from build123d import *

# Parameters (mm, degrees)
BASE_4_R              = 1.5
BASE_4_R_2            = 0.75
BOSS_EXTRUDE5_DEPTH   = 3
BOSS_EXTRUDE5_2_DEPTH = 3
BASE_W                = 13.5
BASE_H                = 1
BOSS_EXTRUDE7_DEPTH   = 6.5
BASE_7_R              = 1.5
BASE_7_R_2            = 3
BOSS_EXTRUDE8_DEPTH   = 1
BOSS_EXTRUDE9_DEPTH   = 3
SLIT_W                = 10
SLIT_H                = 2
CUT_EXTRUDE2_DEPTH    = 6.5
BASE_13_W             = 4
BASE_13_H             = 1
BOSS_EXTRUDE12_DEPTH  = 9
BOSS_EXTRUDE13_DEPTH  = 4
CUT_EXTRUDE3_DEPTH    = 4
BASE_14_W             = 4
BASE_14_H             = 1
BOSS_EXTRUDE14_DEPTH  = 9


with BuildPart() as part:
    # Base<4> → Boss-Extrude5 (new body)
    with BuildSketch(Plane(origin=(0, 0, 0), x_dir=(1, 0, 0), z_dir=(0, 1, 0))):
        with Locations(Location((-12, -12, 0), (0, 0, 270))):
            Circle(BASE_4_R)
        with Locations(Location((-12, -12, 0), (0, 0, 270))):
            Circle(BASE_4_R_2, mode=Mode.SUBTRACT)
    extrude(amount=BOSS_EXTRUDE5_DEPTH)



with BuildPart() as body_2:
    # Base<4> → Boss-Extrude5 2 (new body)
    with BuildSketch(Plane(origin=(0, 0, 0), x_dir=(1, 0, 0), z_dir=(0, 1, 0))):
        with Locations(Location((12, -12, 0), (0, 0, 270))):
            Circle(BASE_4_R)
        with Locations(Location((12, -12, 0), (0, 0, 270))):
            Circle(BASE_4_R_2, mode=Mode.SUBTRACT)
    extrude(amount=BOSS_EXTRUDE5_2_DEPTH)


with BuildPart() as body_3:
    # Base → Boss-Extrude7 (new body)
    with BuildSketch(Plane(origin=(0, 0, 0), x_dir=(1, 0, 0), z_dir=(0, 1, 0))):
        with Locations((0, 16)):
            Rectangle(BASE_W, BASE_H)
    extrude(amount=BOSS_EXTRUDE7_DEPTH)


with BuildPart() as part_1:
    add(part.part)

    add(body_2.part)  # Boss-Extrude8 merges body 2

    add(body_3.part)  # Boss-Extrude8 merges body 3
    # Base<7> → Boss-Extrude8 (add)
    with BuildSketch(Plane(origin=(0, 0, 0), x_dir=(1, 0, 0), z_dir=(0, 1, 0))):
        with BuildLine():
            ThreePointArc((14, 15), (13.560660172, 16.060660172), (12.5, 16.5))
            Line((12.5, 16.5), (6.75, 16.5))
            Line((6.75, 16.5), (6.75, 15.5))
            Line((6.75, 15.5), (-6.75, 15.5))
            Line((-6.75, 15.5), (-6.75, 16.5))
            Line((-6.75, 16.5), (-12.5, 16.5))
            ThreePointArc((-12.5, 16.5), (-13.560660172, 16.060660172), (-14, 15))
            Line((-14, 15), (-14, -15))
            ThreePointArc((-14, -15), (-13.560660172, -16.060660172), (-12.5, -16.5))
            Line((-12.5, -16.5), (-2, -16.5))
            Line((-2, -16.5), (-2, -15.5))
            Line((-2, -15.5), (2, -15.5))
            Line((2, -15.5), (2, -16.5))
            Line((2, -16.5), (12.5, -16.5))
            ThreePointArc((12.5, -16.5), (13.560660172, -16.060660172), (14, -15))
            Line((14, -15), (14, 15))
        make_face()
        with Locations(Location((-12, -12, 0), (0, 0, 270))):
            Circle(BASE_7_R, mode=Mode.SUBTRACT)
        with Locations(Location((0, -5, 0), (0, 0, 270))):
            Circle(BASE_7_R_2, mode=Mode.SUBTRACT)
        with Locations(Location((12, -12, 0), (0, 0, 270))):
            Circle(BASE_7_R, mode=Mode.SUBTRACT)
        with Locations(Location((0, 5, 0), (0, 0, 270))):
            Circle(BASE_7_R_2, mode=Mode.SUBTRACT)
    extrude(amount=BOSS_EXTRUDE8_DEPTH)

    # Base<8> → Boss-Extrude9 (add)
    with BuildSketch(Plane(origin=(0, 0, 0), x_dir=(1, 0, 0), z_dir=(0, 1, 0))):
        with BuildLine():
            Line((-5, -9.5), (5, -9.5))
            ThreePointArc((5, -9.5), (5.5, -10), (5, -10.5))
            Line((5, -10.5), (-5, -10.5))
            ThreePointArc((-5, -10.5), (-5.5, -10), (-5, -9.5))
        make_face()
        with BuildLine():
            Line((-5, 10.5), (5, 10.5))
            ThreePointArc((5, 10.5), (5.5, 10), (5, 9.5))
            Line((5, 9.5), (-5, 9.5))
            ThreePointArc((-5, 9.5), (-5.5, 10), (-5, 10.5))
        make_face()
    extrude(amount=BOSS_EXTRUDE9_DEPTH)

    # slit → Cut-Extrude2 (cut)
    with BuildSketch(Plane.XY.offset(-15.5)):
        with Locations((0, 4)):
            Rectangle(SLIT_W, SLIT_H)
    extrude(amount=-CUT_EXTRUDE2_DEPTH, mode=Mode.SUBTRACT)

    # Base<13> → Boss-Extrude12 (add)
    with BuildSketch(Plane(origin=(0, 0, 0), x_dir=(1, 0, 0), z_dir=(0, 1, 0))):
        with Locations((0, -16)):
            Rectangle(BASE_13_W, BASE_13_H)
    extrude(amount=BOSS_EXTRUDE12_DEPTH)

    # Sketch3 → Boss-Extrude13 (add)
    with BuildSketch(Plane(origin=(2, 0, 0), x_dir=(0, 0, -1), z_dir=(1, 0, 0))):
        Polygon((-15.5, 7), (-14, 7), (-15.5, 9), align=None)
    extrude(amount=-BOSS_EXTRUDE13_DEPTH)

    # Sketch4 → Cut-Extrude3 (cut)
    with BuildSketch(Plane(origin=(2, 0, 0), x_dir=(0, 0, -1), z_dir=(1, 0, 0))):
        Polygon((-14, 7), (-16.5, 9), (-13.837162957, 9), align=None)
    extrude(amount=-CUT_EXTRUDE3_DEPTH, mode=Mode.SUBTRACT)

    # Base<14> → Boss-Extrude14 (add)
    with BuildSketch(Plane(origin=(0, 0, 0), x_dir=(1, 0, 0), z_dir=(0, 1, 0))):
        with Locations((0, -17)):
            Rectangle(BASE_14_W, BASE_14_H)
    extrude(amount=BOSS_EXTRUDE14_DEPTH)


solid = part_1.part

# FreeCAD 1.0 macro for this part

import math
import FreeCAD as App
import Part
import Sketcher
from FreeCAD import Vector


def add_polygon(sketch, points):
    """Adds a closed chain of lines whose ends are joined by coincident constraints."""
    first, n = sketch.GeometryCount, len(points)
    for a, b in zip(points, points[1:] + points[:1]):
        sketch.addGeometry(Part.LineSegment(App.Vector(*a, 0), App.Vector(*b, 0)), False)
    for i in range(n):
        sketch.addConstraint(Sketcher.Constraint("Coincident", first + i, 2, first + (i + 1) % n, 1))

doc = App.newDocument("Part")
params = doc.addObject("Spreadsheet::Sheet", "Params")
for row, (alias, value) in enumerate([
    ("sketch1_diameter", "3 mm"),
    ("sketch1_diameter2", "1.5 mm"),
    ("pad1_length", "3 mm"),
    ("sketch2_diameter", "3 mm"),
    ("sketch2_diameter2", "1.5 mm"),
    ("pad2_length", "3 mm"),
    ("sketch3_height", "1 mm"),
    ("sketch3_width", "13.5 mm"),
    ("pad3_length", "6.5 mm"),
    ("sketch4_diameter", "3 mm"),
    ("sketch4_diameter2", "6 mm"),
    ("sketch4_width", "4 mm"),
    ("sketch4_height", "1 mm"),
    ("sketch4_height2", "30 mm"),
    ("pad4_length", "1 mm"),
    ("sketch5_radius", "0.5 mm"),
    ("sketch5_width", "10 mm"),
    ("pad5_length", "3 mm"),
    ("sketch6_width", "10 mm"),
    ("sketch6_height", "2 mm"),
    ("pocket1_length", "6.5 mm"),
    ("sketch7_width", "4 mm"),
    ("sketch7_height", "1 mm"),
    ("pad6_length", "9 mm"),
    ("sketch8_width", "2 mm"),
    ("sketch8_height", "1.5 mm"),
    ("pad7_length", "4 mm"),
    ("pocket2_length", "4 mm"),
    ("sketch10_width", "4 mm"),
    ("sketch10_height", "1 mm"),
    ("pad8_length", "9 mm"),
], start=1):
    params.set(f"A{row}", alias)
    params.set(f"B{row}", "=" + value)
    params.setAlias(f"B{row}", alias)

body = doc.addObject("PartDesign::Body", "Body")

# Sketch on XZ plane
sketch1 = doc.addObject("Sketcher::SketchObject", "Sketch")
body.addObject(sketch1)
sketch1.AttachmentSupport = (doc.XZ_Plane, [""])
sketch1.MapMode = "FlatFace"
sketch1.addGeometry(Part.Circle(Vector(-12, 12, 0), Vector(0, 0, 1), 1.5), False)
sketch1.addGeometry(Part.Circle(Vector(-12, 12, 0), Vector(0, 0, 1), 0.8), False)
sketch1.addConstraint(Sketcher.Constraint("Coincident", 1, 3, 0, 3))
sketch1.addConstraint(Sketcher.Constraint("Diameter", 0, 3.0))
sketch1.addConstraint(Sketcher.Constraint("Diameter", 1, 1.5))
sketch1.addConstraint(Sketcher.Constraint("DistanceX", 0, 3, -1, 1, 12.0))
sketch1.addConstraint(Sketcher.Constraint("DistanceY", -1, 1, 0, 3, 12.0))
sketch1.setExpression("Constraints[1]", "Params.sketch1_diameter")
sketch1.setExpression("Constraints[2]", "Params.sketch1_diameter2")
pad1 = doc.addObject("PartDesign::Pad", "Pad")
body.addObject(pad1)
pad1.Profile = sketch1
pad1.setExpression("Length", "Params.pad1_length")
pad1.Reversed = True
body2 = doc.addObject("PartDesign::Body", "Body001")

# Sketch on XZ plane
sketch2 = doc.addObject("Sketcher::SketchObject", "Sketch001")
body2.addObject(sketch2)
sketch2.AttachmentSupport = (doc.getObject("XZ_Plane001"), [""])
sketch2.MapMode = "FlatFace"
sketch2.addGeometry(Part.Circle(Vector(12, 12, 0), Vector(0, 0, 1), 1.5), False)
sketch2.addGeometry(Part.Circle(Vector(12, 12, 0), Vector(0, 0, 1), 0.8), False)
sketch2.addConstraint(Sketcher.Constraint("Coincident", 1, 3, 0, 3))
sketch2.addConstraint(Sketcher.Constraint("Diameter", 0, 3.0))
sketch2.addConstraint(Sketcher.Constraint("Diameter", 1, 1.5))
sketch2.addConstraint(Sketcher.Constraint("DistanceX", -1, 1, 0, 3, 12.0))
sketch2.addConstraint(Sketcher.Constraint("DistanceY", -1, 1, 0, 3, 12.0))
sketch2.setExpression("Constraints[1]", "Params.sketch2_diameter")
sketch2.setExpression("Constraints[2]", "Params.sketch2_diameter2")
pad2 = doc.addObject("PartDesign::Pad", "Pad001")
body2.addObject(pad2)
pad2.Profile = sketch2
pad2.setExpression("Length", "Params.pad2_length")
pad2.Reversed = True
body3 = doc.addObject("PartDesign::Body", "Body002")

# Sketch on XZ plane
sketch3 = doc.addObject("Sketcher::SketchObject", "Sketch002")
body3.addObject(sketch3)
sketch3.AttachmentSupport = (doc.getObject("XZ_Plane002"), [""])
sketch3.MapMode = "FlatFace"
add_polygon(sketch3, [(-6.8, -16.5), (-6.8, -15.5), (6.8, -15.5), (6.8, -16.5)])  # lines 0-3
sketch3.addConstraint(Sketcher.Constraint("Vertical", 0))
sketch3.addConstraint(Sketcher.Constraint("Horizontal", 1))
sketch3.addConstraint(Sketcher.Constraint("Vertical", 2))
sketch3.addConstraint(Sketcher.Constraint("Horizontal", 3))
sketch3.addConstraint(Sketcher.Constraint("DistanceY", 0, 1, 0, 2, 1.0))
sketch3.addConstraint(Sketcher.Constraint("DistanceX", 1, 1, 1, 2, 13.5))
sketch3.addConstraint(Sketcher.Constraint("DistanceY", 0, 2, -1, 1, 15.5))
sketch3.addConstraint(Sketcher.Constraint("DistanceX", 0, 2, -1, 1, 6.75))
sketch3.setExpression("Constraints[8]", "Params.sketch3_height")
sketch3.setExpression("Constraints[9]", "Params.sketch3_width")
pad3 = doc.addObject("PartDesign::Pad", "Pad002")
body3.addObject(pad3)
pad3.Profile = sketch3
pad3.setExpression("Length", "Params.pad3_length")
pad3.Reversed = True
body.AllowCompound = True
doc.recompute()

boolean = doc.addObject("PartDesign::Boolean", "Boolean")
body.addObject(boolean)
boolean.Type = "Fuse"
boolean.addObjects([body2])
doc.recompute()

boolean2 = doc.addObject("PartDesign::Boolean", "Boolean001")
body.addObject(boolean2)
boolean2.Type = "Fuse"
boolean2.addObjects([body3])

# Sketch on XZ plane
sketch4 = doc.addObject("Sketcher::SketchObject", "Sketch003")
body.addObject(sketch4)
sketch4.AttachmentSupport = (doc.XZ_Plane, [""])
sketch4.MapMode = "FlatFace"
sketch4.addGeometry(Part.ArcOfCircle(Part.Circle(Vector(12.5, -15, 0), Vector(0, 0, 1), 1.5), math.radians(-90), math.radians(0)), False)
sketch4.addGeometry(Part.LineSegment(Vector(12.5, -16.5, 0), Vector(6.8, -16.5, 0)), False)
sketch4.addGeometry(Part.LineSegment(Vector(6.8, -16.5, 0), Vector(6.8, -15.5, 0)), False)
sketch4.addGeometry(Part.LineSegment(Vector(6.8, -15.5, 0), Vector(-6.8, -15.5, 0)), False)
sketch4.addGeometry(Part.LineSegment(Vector(-6.8, -15.5, 0), Vector(-6.8, -16.5, 0)), False)
sketch4.addGeometry(Part.LineSegment(Vector(-6.8, -16.5, 0), Vector(-12.5, -16.5, 0)), False)
sketch4.addGeometry(Part.ArcOfCircle(Part.Circle(Vector(-12.5, -15, 0), Vector(0, 0, 1), 1.5), math.radians(180), math.radians(270)), False)
sketch4.addGeometry(Part.LineSegment(Vector(-14, -15, 0), Vector(-14, 15, 0)), False)
sketch4.addGeometry(Part.ArcOfCircle(Part.Circle(Vector(-12.5, 15, 0), Vector(0, 0, 1), 1.5), math.radians(90), math.radians(180)), False)
sketch4.addGeometry(Part.LineSegment(Vector(-12.5, 16.5, 0), Vector(-2, 16.5, 0)), False)
sketch4.addGeometry(Part.LineSegment(Vector(-2, 16.5, 0), Vector(-2, 15.5, 0)), False)
sketch4.addGeometry(Part.LineSegment(Vector(-2, 15.5, 0), Vector(2, 15.5, 0)), False)
sketch4.addGeometry(Part.LineSegment(Vector(2, 15.5, 0), Vector(2, 16.5, 0)), False)
sketch4.addGeometry(Part.LineSegment(Vector(2, 16.5, 0), Vector(12.5, 16.5, 0)), False)
sketch4.addGeometry(Part.ArcOfCircle(Part.Circle(Vector(12.5, 15, 0), Vector(0, 0, 1), 1.5), math.radians(0), math.radians(90)), False)
sketch4.addGeometry(Part.LineSegment(Vector(14, 15, 0), Vector(14, -15, 0)), False)
sketch4.addGeometry(Part.Circle(Vector(-12, 12, 0), Vector(0, 0, 1), 1.5), False)
sketch4.addGeometry(Part.Circle(Vector(12, 12, 0), Vector(0, 0, 1), 1.5), False)
sketch4.addGeometry(Part.Circle(Vector(0, 5, 0), Vector(0, 0, 1), 3), False)
sketch4.addGeometry(Part.Circle(Vector(0, -5, 0), Vector(0, 0, 1), 3), False)
sketch4.addConstraint(Sketcher.Constraint("Tangent", 0, 1, 1, 1))
sketch4.addConstraint(Sketcher.Constraint("Coincident", 1, 2, 2, 1))
sketch4.addConstraint(Sketcher.Constraint("Coincident", 2, 2, 3, 1))
sketch4.addConstraint(Sketcher.Constraint("Coincident", 3, 2, 4, 1))
sketch4.addConstraint(Sketcher.Constraint("Coincident", 4, 2, 5, 1))
sketch4.addConstraint(Sketcher.Constraint("Tangent", 5, 2, 6, 2))
sketch4.addConstraint(Sketcher.Constraint("Tangent", 6, 1, 7, 1))
sketch4.addConstraint(Sketcher.Constraint("Tangent", 7, 2, 8, 2))
sketch4.addConstraint(Sketcher.Constraint("Tangent", 8, 1, 9, 1))
sketch4.addConstraint(Sketcher.Constraint("Coincident", 9, 2, 10, 1))
sketch4.addConstraint(Sketcher.Constraint("Coincident", 10, 2, 11, 1))
sketch4.addConstraint(Sketcher.Constraint("Coincident", 11, 2, 12, 1))
sketch4.addConstraint(Sketcher.Constraint("Coincident", 12, 2, 13, 1))
sketch4.addConstraint(Sketcher.Constraint("Tangent", 13, 2, 14, 2))
sketch4.addConstraint(Sketcher.Constraint("Tangent", 14, 1, 15, 1))
sketch4.addConstraint(Sketcher.Constraint("Tangent", 15, 2, 0, 2))
sketch4.addConstraint(Sketcher.Constraint("Horizontal", 1))
sketch4.addConstraint(Sketcher.Constraint("Vertical", 2))
sketch4.addConstraint(Sketcher.Constraint("Horizontal", 3))
sketch4.addConstraint(Sketcher.Constraint("Vertical", 4))
sketch4.addConstraint(Sketcher.Constraint("Horizontal", 5))
sketch4.addConstraint(Sketcher.Constraint("Vertical", 7))
sketch4.addConstraint(Sketcher.Constraint("Horizontal", 9))
sketch4.addConstraint(Sketcher.Constraint("Vertical", 10))
sketch4.addConstraint(Sketcher.Constraint("Horizontal", 11))
sketch4.addConstraint(Sketcher.Constraint("Vertical", 12))
sketch4.addConstraint(Sketcher.Constraint("Horizontal", 13))
sketch4.addConstraint(Sketcher.Constraint("Vertical", 15))
sketch4.addConstraint(Sketcher.Constraint("Equal", 0, 6))
sketch4.addConstraint(Sketcher.Constraint("Equal", 6, 8))
sketch4.addConstraint(Sketcher.Constraint("Equal", 8, 14))
sketch4.addConstraint(Sketcher.Constraint("Equal", 14, 16))
sketch4.addConstraint(Sketcher.Constraint("Equal", 16, 17))
sketch4.addConstraint(Sketcher.Constraint("Equal", 18, 19))
sketch4.addConstraint(Sketcher.Constraint("Symmetric", 0, 3, 8, 3, -1, 1))
sketch4.addConstraint(Sketcher.Constraint("Symmetric", 18, 3, 19, 3, -1, 1))
sketch4.addConstraint(Sketcher.Constraint("Symmetric", 16, 3, 17, 3, -2))
sketch4.addConstraint(Sketcher.Constraint("Symmetric", 1, 2, 4, 2, -2))
sketch4.addConstraint(Sketcher.Constraint("Symmetric", 9, 2, 12, 2, -2))
sketch4.addConstraint(Sketcher.Constraint("PointOnObject", 18, 3, -2))
sketch4.addConstraint(Sketcher.Constraint("Equal", 4, 10))
sketch4.addConstraint(Sketcher.Constraint("Diameter", 16, 3.0))
sketch4.addConstraint(Sketcher.Constraint("Diameter", 18, 6.0))
sketch4.addConstraint(Sketcher.Constraint("DistanceX", 11, 1, 11, 2, 4.0))
sketch4.addConstraint(Sketcher.Constraint("DistanceY", 2, 1, 2, 2, 1.0))
sketch4.addConstraint(Sketcher.Constraint("DistanceY", 7, 1, 7, 2, 30.0))
sketch4.addConstraint(Sketcher.Constraint("DistanceX", 3, 2, 3, 1, 13.5))
sketch4.addConstraint(Sketcher.Constraint("DistanceX", 9, 1, 9, 2, 10.5))
sketch4.addConstraint(Sketcher.Constraint("DistanceX", 16, 3, -1, 1, 12.0))
sketch4.addConstraint(Sketcher.Constraint("DistanceY", -1, 1, 16, 3, 12.0))
sketch4.addConstraint(Sketcher.Constraint("DistanceY", -1, 1, 18, 3, 5.0))
sketch4.setExpression("Constraints[41]", "Params.sketch4_diameter")
sketch4.setExpression("Constraints[42]", "Params.sketch4_diameter2")
sketch4.setExpression("Constraints[43]", "Params.sketch4_width")
sketch4.setExpression("Constraints[44]", "Params.sketch4_height")
sketch4.setExpression("Constraints[45]", "Params.sketch4_height2")
pad4 = doc.addObject("PartDesign::Pad", "Pad003")
body.addObject(pad4)
pad4.Profile = sketch4
pad4.setExpression("Length", "Params.pad4_length")
pad4.Reversed = True

# Sketch on XZ plane
sketch5 = doc.addObject("Sketcher::SketchObject", "Sketch004")
body.addObject(sketch5)
sketch5.AttachmentSupport = (doc.XZ_Plane, [""])
sketch5.MapMode = "FlatFace"
sketch5.addGeometry(Part.LineSegment(Vector(5, 9.5, 0), Vector(-5, 9.5, 0)), False)
sketch5.addGeometry(Part.ArcOfCircle(Part.Circle(Vector(-5, 10, 0), Vector(0, 0, 1), 0.5), math.radians(90), math.radians(270)), False)
sketch5.addGeometry(Part.LineSegment(Vector(-5, 10.5, 0), Vector(5, 10.5, 0)), False)
sketch5.addGeometry(Part.ArcOfCircle(Part.Circle(Vector(5, 10, 0), Vector(0, 0, 1), 0.5), math.radians(-90), math.radians(90)), False)
sketch5.addGeometry(Part.LineSegment(Vector(5, -10.5, 0), Vector(-5, -10.5, 0)), False)
sketch5.addGeometry(Part.ArcOfCircle(Part.Circle(Vector(-5, -10, 0), Vector(0, 0, 1), 0.5), math.radians(90), math.radians(270)), False)
sketch5.addGeometry(Part.LineSegment(Vector(-5, -9.5, 0), Vector(5, -9.5, 0)), False)
sketch5.addGeometry(Part.ArcOfCircle(Part.Circle(Vector(5, -10, 0), Vector(0, 0, 1), 0.5), math.radians(-90), math.radians(90)), False)
sketch5.addConstraint(Sketcher.Constraint("Tangent", 0, 2, 1, 2))
sketch5.addConstraint(Sketcher.Constraint("Tangent", 1, 1, 2, 1))
sketch5.addConstraint(Sketcher.Constraint("Tangent", 2, 2, 3, 2))
sketch5.addConstraint(Sketcher.Constraint("Tangent", 3, 1, 0, 1))
sketch5.addConstraint(Sketcher.Constraint("Tangent", 4, 2, 5, 2))
sketch5.addConstraint(Sketcher.Constraint("Tangent", 5, 1, 6, 1))
sketch5.addConstraint(Sketcher.Constraint("Tangent", 6, 2, 7, 2))
sketch5.addConstraint(Sketcher.Constraint("Tangent", 7, 1, 4, 1))
sketch5.addConstraint(Sketcher.Constraint("Horizontal", 0))
sketch5.addConstraint(Sketcher.Constraint("Horizontal", 2))
sketch5.addConstraint(Sketcher.Constraint("Horizontal", 4))
sketch5.addConstraint(Sketcher.Constraint("Horizontal", 6))
sketch5.addConstraint(Sketcher.Constraint("Equal", 3, 5))
sketch5.addConstraint(Sketcher.Constraint("Symmetric", 3, 3, 5, 3, -1, 1))
sketch5.addConstraint(Sketcher.Constraint("Vertical", 1, 3, 5, 3))
sketch5.addConstraint(Sketcher.Constraint("Vertical", 3, 3, 7, 3))
sketch5.addConstraint(Sketcher.Constraint("Radius", 1, 0.5))
sketch5.addConstraint(Sketcher.Constraint("DistanceX", 0, 2, 0, 1, 10.0))
sketch5.addConstraint(Sketcher.Constraint("DistanceY", -1, 1, 1, 3, 10.0))
sketch5.setExpression("Constraints[16]", "Params.sketch5_radius")
sketch5.setExpression("Constraints[17]", "Params.sketch5_width")
pad5 = doc.addObject("PartDesign::Pad", "Pad004")
body.addObject(pad5)
pad5.Profile = sketch5
pad5.setExpression("Length", "Params.pad5_length")
pad5.Reversed = True

# Sketch on XY plane
sketch6 = doc.addObject("Sketcher::SketchObject", "Sketch005")
body.addObject(sketch6)
sketch6.AttachmentSupport = (doc.XY_Plane, [""])
sketch6.MapMode = "FlatFace"
sketch6.AttachmentOffset = App.Placement(Vector(0, 0, -15.5), App.Rotation())
add_polygon(sketch6, [(-5, 5), (-5, 3), (5, 3), (5, 5)])  # lines 0-3
sketch6.addConstraint(Sketcher.Constraint("Vertical", 0))
sketch6.addConstraint(Sketcher.Constraint("Horizontal", 1))
sketch6.addConstraint(Sketcher.Constraint("Vertical", 2))
sketch6.addConstraint(Sketcher.Constraint("Horizontal", 3))
sketch6.addConstraint(Sketcher.Constraint("DistanceX", 1, 1, 1, 2, 10.0))
sketch6.addConstraint(Sketcher.Constraint("DistanceY", 0, 2, 0, 1, 2.0))
sketch6.addConstraint(Sketcher.Constraint("DistanceX", 0, 2, -1, 1, 5.0))
sketch6.addConstraint(Sketcher.Constraint("DistanceY", -1, 1, 0, 2, 3.0))
sketch6.setExpression("Constraints[8]", "Params.sketch6_width")
sketch6.setExpression("Constraints[9]", "Params.sketch6_height")
pocket1 = doc.addObject("PartDesign::Pocket", "Pocket")
body.addObject(pocket1)
pocket1.Profile = sketch6
pocket1.setExpression("Length", "Params.pocket1_length")

# Sketch on XZ plane
sketch7 = doc.addObject("Sketcher::SketchObject", "Sketch006")
body.addObject(sketch7)
sketch7.AttachmentSupport = (doc.XZ_Plane, [""])
sketch7.MapMode = "FlatFace"
add_polygon(sketch7, [(-2, 15.5), (-2, 16.5), (2, 16.5), (2, 15.5)])  # lines 0-3
sketch7.addConstraint(Sketcher.Constraint("Vertical", 0))
sketch7.addConstraint(Sketcher.Constraint("Horizontal", 1))
sketch7.addConstraint(Sketcher.Constraint("Vertical", 2))
sketch7.addConstraint(Sketcher.Constraint("Horizontal", 3))
sketch7.addConstraint(Sketcher.Constraint("DistanceX", 1, 1, 1, 2, 4.0))
sketch7.addConstraint(Sketcher.Constraint("DistanceY", 0, 1, 0, 2, 1.0))
sketch7.addConstraint(Sketcher.Constraint("DistanceX", 0, 2, -1, 1, 2.0))
sketch7.addConstraint(Sketcher.Constraint("DistanceY", -1, 1, 0, 2, 16.5))
sketch7.setExpression("Constraints[8]", "Params.sketch7_width")
sketch7.setExpression("Constraints[9]", "Params.sketch7_height")
pad6 = doc.addObject("PartDesign::Pad", "Pad005")
body.addObject(pad6)
pad6.Profile = sketch7
pad6.setExpression("Length", "Params.pad6_length")
pad6.Reversed = True

# Sketch on YZ plane
sketch8 = doc.addObject("Sketcher::SketchObject", "Sketch007")
body.addObject(sketch8)
sketch8.AttachmentSupport = (doc.YZ_Plane, [""])
sketch8.MapMode = "FlatFace"
sketch8.AttachmentOffset = App.Placement(Vector(0, 0, 2), App.Rotation())
add_polygon(sketch8, [(7, 15.5), (7, 14), (9, 15.5)])  # lines 0-2
sketch8.addConstraint(Sketcher.Constraint("Vertical", 0))
sketch8.addConstraint(Sketcher.Constraint("Horizontal", 2))
sketch8.addConstraint(Sketcher.Constraint("DistanceX", 2, 2, 2, 1, 2.0))
sketch8.addConstraint(Sketcher.Constraint("DistanceY", 0, 2, 0, 1, 1.5))
sketch8.addConstraint(Sketcher.Constraint("DistanceX", -1, 1, 0, 2, 7.0))
sketch8.addConstraint(Sketcher.Constraint("DistanceY", -1, 1, 0, 2, 14.0))
sketch8.setExpression("Constraints[5]", "Params.sketch8_width")
sketch8.setExpression("Constraints[6]", "Params.sketch8_height")
pad7 = doc.addObject("PartDesign::Pad", "Pad006")
body.addObject(pad7)
pad7.Profile = sketch8
pad7.setExpression("Length", "Params.pad7_length")
pad7.Reversed = True

# Sketch on YZ plane
sketch9 = doc.addObject("Sketcher::SketchObject", "Sketch008")
body.addObject(sketch9)
sketch9.AttachmentSupport = (doc.YZ_Plane, [""])
sketch9.MapMode = "FlatFace"
sketch9.AttachmentOffset = App.Placement(Vector(0, 0, 2), App.Rotation())
add_polygon(sketch9, [(9, 16.5), (7, 14), (9, 13.8)])  # lines 0-2
sketch9.addConstraint(Sketcher.Constraint("Vertical", 2))
sketch9.addConstraint(Sketcher.Constraint("DistanceX", -1, 1, 0, 2, 7.0))
sketch9.addConstraint(Sketcher.Constraint("DistanceY", -1, 1, 0, 2, 14.0))
sketch9.addConstraint(Sketcher.Constraint("DistanceX", -1, 1, 1, 2, 9.0))
sketch9.addConstraint(Sketcher.Constraint("DistanceY", -1, 1, 2, 2, 16.5))
sketch9.addConstraint(Sketcher.Constraint("Distance", 1, 2.006618))
pocket2 = doc.addObject("PartDesign::Pocket", "Pocket001")
body.addObject(pocket2)
pocket2.Profile = sketch9
pocket2.setExpression("Length", "Params.pocket2_length")

# Sketch on XZ plane
sketch10 = doc.addObject("Sketcher::SketchObject", "Sketch009")
body.addObject(sketch10)
sketch10.AttachmentSupport = (doc.XZ_Plane, [""])
sketch10.MapMode = "FlatFace"
add_polygon(sketch10, [(-2, 16.5), (-2, 17.5), (2, 17.5), (2, 16.5)])  # lines 0-3
sketch10.addConstraint(Sketcher.Constraint("Vertical", 0))
sketch10.addConstraint(Sketcher.Constraint("Horizontal", 1))
sketch10.addConstraint(Sketcher.Constraint("Vertical", 2))
sketch10.addConstraint(Sketcher.Constraint("Horizontal", 3))
sketch10.addConstraint(Sketcher.Constraint("DistanceX", 1, 1, 1, 2, 4.0))
sketch10.addConstraint(Sketcher.Constraint("DistanceY", 0, 1, 0, 2, 1.0))
sketch10.addConstraint(Sketcher.Constraint("DistanceX", 0, 2, -1, 1, 2.0))
sketch10.addConstraint(Sketcher.Constraint("DistanceY", -1, 1, 0, 2, 17.5))
sketch10.setExpression("Constraints[8]", "Params.sketch10_width")
sketch10.setExpression("Constraints[9]", "Params.sketch10_height")
pad8 = doc.addObject("PartDesign::Pad", "Pad007")
body.addObject(pad8)
pad8.Profile = sketch10
pad8.setExpression("Length", "Params.pad8_length")
pad8.Reversed = True

doc.recompute()
